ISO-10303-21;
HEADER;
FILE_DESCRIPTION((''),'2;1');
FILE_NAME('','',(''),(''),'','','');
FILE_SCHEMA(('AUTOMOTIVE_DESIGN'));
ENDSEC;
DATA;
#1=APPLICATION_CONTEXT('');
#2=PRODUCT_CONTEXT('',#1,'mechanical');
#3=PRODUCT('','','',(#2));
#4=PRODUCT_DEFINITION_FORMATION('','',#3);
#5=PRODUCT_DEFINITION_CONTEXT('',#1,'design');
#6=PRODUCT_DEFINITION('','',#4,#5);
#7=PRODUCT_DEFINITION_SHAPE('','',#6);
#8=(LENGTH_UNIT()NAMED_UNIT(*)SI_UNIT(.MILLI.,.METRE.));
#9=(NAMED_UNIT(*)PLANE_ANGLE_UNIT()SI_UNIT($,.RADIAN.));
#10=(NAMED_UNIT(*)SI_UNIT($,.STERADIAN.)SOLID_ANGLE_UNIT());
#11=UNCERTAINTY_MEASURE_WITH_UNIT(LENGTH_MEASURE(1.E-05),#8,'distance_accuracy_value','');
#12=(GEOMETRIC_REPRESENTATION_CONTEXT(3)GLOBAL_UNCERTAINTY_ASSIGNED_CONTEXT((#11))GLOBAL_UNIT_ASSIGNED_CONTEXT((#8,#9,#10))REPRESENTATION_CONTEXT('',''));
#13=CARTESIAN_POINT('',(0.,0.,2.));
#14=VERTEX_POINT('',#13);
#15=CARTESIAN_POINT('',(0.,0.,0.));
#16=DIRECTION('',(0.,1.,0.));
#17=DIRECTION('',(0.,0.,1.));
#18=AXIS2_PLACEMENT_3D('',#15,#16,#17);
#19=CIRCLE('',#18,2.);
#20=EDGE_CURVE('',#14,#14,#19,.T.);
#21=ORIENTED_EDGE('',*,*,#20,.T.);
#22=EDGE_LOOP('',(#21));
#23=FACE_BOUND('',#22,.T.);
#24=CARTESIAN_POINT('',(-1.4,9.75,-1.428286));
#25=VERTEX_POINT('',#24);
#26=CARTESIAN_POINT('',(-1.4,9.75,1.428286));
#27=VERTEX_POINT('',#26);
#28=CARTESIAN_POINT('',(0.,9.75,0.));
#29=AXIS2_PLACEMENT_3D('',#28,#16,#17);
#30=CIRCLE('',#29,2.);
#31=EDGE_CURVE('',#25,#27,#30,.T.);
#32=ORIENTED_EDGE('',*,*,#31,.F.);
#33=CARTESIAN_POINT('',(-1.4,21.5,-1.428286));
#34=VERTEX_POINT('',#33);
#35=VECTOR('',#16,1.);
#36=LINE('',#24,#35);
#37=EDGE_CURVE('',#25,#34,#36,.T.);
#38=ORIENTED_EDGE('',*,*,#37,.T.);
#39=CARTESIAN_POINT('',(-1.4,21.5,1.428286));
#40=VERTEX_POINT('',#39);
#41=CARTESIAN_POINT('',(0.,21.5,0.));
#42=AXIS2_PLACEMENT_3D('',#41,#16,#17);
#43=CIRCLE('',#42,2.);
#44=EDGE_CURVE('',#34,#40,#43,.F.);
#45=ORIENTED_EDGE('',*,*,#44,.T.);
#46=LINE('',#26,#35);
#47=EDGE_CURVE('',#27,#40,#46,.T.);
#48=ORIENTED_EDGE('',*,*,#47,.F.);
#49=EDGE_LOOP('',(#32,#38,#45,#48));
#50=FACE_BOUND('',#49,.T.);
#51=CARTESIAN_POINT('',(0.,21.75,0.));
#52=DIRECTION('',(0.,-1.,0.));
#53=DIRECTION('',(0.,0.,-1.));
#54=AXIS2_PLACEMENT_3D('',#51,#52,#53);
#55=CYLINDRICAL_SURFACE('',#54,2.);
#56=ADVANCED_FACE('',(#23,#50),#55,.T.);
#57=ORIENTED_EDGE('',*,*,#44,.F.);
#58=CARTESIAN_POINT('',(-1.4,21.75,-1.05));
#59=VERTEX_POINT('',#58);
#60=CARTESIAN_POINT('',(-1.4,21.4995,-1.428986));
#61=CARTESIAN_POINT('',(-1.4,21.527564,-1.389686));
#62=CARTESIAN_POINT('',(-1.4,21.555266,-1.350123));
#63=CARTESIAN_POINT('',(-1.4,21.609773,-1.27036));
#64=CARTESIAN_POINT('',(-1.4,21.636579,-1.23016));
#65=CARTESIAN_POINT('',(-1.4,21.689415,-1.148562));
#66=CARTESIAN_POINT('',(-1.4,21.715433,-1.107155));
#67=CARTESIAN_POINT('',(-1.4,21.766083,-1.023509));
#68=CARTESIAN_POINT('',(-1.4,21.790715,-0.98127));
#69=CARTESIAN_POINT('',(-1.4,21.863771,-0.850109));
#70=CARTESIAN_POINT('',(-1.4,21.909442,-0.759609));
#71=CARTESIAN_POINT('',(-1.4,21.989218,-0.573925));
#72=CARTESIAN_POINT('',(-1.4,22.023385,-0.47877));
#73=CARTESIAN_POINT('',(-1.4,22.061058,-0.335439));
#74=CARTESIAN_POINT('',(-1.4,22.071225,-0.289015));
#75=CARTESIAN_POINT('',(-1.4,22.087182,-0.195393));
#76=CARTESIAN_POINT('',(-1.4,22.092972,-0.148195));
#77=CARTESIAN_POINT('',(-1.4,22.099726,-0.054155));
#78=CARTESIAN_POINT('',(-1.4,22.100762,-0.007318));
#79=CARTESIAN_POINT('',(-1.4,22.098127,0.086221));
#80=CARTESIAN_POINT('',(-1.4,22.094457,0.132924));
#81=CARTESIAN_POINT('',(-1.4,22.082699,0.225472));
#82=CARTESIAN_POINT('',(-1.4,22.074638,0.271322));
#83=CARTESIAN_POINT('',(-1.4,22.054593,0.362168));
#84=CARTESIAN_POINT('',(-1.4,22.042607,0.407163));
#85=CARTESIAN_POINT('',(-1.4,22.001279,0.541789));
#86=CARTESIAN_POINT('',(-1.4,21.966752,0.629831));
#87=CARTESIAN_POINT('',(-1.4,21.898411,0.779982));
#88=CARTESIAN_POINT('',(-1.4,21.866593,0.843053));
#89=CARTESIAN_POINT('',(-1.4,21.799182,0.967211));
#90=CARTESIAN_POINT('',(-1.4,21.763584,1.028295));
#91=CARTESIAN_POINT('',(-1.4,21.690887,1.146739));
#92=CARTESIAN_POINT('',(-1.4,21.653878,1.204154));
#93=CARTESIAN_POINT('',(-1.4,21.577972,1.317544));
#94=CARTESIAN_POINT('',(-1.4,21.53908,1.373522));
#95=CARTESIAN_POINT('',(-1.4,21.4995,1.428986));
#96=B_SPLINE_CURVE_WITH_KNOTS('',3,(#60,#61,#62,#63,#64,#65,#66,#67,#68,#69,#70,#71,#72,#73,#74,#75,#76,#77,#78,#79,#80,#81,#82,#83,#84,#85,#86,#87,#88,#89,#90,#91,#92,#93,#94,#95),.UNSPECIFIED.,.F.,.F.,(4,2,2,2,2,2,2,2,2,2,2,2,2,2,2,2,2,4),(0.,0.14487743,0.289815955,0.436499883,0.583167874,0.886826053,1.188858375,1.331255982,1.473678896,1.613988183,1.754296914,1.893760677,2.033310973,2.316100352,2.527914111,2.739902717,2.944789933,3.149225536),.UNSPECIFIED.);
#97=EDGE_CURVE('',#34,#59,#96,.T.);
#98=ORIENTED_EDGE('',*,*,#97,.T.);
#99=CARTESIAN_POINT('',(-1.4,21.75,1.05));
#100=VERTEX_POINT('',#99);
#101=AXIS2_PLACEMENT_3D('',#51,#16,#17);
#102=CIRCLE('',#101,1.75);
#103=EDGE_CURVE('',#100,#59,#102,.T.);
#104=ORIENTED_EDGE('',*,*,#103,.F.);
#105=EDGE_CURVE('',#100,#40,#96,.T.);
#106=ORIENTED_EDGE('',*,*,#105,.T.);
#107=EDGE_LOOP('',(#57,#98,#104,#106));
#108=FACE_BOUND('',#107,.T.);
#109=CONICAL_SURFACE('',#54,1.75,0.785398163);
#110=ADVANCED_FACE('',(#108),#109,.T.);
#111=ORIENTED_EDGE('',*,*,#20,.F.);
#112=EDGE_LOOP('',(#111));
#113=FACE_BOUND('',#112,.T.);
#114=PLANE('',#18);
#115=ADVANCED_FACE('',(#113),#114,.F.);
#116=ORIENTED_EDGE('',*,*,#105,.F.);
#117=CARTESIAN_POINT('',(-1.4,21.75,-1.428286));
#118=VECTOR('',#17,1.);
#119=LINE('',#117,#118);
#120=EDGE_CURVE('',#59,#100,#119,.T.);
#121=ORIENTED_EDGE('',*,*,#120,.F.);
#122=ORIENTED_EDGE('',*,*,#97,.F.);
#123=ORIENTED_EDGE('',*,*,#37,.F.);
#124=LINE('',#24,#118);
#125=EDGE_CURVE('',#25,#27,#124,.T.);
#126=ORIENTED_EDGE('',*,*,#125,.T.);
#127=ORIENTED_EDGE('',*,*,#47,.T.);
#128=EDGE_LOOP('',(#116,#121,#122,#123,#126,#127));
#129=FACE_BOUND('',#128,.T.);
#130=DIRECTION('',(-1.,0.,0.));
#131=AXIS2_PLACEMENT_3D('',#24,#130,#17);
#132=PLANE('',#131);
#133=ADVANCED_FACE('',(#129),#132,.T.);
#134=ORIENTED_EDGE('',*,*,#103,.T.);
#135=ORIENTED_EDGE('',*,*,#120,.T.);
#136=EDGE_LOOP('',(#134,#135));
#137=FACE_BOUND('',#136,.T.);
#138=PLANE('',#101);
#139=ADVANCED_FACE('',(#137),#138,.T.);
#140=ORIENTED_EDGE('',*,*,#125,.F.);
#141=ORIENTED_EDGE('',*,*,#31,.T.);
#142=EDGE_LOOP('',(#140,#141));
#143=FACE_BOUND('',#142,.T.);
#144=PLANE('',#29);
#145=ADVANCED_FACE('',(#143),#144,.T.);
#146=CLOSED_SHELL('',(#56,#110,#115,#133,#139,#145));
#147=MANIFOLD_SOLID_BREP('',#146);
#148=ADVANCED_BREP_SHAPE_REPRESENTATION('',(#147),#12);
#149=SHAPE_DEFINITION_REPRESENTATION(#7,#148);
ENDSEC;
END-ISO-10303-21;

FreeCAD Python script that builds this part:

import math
import FreeCAD as App
import Part
import Sketcher


def edges_at(feature, points):
    """Names of the edges that pass closest to the given points."""
    edges = feature.Shape.Edges
    near = lambda p: min(range(len(edges)), key=lambda i: edges[i].distToShape(Part.Vertex(*p))[0])
    return sorted({f"Edge{near(p) + 1}" for p in points})


def add_polygon(sketch, points):
    """Adds a closed chain of lines whose ends are joined by coincident constraints."""
    first, n = sketch.GeometryCount, len(points)
    for a, b in zip(points, points[1:] + points[:1]):
        sketch.addGeometry(Part.LineSegment(App.Vector(*a, 0), App.Vector(*b, 0)), False)
    for i in range(n):
        sketch.addConstraint(Sketcher.Constraint("Coincident", first + i, 2, first + (i + 1) % n, 1))

doc = App.newDocument("Part")
body = doc.addObject("PartDesign::Body", "Body")

# Sketch on XZ plane
sketch1 = doc.addObject("Sketcher::SketchObject", "Sketch")
body.addObject(sketch1)
sketch1.AttachmentSupport = (doc.XZ_Plane, [""])
sketch1.MapMode = "FlatFace"
sketch1.addGeometry(Part.Circle(App.Vector(0, 0, 0), App.Vector(0, 0, 1), 2), False)
sketch1.addConstraint([
    Sketcher.Constraint("Coincident", 0, 3, -1, 1),
    Sketcher.Constraint("Diameter", 0, 4.0),
])
pad1 = doc.addObject("PartDesign::Pad", "Pad")
body.addObject(pad1)
pad1.Profile = sketch1
pad1.Length = 21.75
pad1.Reversed = True
doc.recompute()

chamfer = doc.addObject("PartDesign::Chamfer", "Chamfer")
body.addObject(chamfer)
chamfer.Base = (pad1, edges_at(pad1, [(0, 21.75, -2)]))
chamfer.Size = 0.25

# Sketch on XZ plane
sketch2 = doc.addObject("Sketcher::SketchObject", "Sketch001")
body.addObject(sketch2)
sketch2.AttachmentSupport = (doc.XZ_Plane, [""])
sketch2.MapMode = "FlatFace"
sketch2.AttachmentOffset = App.Placement(App.Vector(0, 0, -21.75), App.Rotation())
add_polygon(sketch2, [(-5.2, -5.2), (-5.2, 5.2), (5.2, 5.2), (5.2, -5.2)])  # lines 0-3
sketch2.addGeometry(Part.LineSegment(App.Vector(-1.4, 1.4, 0), App.Vector(-1.4, -1.4, 0)), False)  # 4
sketch2.addGeometry(Part.ArcOfCircle(Part.Circle(App.Vector(0, 0, 0), App.Vector(0, 0, 1), 2), math.radians(-134), math.radians(134)), False)  # 5
sketch2.addConstraint([
    Sketcher.Constraint("Coincident", 4, 1, 5, 2),
    Sketcher.Constraint("Coincident", 5, 1, 4, 2),
    Sketcher.Constraint("Vertical", 0),
    Sketcher.Constraint("Horizontal", 1),
    Sketcher.Constraint("Vertical", 2),
    Sketcher.Constraint("Horizontal", 3),
    Sketcher.Constraint("Vertical", 4),
    Sketcher.Constraint("Coincident", 5, 3, -1, 1),
    Sketcher.Constraint("Symmetric", 0, 2, 2, 2, -1, 1),
    Sketcher.Constraint("Equal", 3, 0),
    Sketcher.Constraint("Radius", 5, 2.0),
    Sketcher.Constraint("DistanceX", 4, 1, -1, 1, 1.4),
    Sketcher.Constraint("DistanceX", 1, 1, 1, 2, 10.494),
])
pocket1 = doc.addObject("PartDesign::Pocket", "Pocket")
body.addObject(pocket1)
pocket1.Profile = sketch2
pocket1.Length = 12
pocket1.Reversed = True

doc.recompute()
